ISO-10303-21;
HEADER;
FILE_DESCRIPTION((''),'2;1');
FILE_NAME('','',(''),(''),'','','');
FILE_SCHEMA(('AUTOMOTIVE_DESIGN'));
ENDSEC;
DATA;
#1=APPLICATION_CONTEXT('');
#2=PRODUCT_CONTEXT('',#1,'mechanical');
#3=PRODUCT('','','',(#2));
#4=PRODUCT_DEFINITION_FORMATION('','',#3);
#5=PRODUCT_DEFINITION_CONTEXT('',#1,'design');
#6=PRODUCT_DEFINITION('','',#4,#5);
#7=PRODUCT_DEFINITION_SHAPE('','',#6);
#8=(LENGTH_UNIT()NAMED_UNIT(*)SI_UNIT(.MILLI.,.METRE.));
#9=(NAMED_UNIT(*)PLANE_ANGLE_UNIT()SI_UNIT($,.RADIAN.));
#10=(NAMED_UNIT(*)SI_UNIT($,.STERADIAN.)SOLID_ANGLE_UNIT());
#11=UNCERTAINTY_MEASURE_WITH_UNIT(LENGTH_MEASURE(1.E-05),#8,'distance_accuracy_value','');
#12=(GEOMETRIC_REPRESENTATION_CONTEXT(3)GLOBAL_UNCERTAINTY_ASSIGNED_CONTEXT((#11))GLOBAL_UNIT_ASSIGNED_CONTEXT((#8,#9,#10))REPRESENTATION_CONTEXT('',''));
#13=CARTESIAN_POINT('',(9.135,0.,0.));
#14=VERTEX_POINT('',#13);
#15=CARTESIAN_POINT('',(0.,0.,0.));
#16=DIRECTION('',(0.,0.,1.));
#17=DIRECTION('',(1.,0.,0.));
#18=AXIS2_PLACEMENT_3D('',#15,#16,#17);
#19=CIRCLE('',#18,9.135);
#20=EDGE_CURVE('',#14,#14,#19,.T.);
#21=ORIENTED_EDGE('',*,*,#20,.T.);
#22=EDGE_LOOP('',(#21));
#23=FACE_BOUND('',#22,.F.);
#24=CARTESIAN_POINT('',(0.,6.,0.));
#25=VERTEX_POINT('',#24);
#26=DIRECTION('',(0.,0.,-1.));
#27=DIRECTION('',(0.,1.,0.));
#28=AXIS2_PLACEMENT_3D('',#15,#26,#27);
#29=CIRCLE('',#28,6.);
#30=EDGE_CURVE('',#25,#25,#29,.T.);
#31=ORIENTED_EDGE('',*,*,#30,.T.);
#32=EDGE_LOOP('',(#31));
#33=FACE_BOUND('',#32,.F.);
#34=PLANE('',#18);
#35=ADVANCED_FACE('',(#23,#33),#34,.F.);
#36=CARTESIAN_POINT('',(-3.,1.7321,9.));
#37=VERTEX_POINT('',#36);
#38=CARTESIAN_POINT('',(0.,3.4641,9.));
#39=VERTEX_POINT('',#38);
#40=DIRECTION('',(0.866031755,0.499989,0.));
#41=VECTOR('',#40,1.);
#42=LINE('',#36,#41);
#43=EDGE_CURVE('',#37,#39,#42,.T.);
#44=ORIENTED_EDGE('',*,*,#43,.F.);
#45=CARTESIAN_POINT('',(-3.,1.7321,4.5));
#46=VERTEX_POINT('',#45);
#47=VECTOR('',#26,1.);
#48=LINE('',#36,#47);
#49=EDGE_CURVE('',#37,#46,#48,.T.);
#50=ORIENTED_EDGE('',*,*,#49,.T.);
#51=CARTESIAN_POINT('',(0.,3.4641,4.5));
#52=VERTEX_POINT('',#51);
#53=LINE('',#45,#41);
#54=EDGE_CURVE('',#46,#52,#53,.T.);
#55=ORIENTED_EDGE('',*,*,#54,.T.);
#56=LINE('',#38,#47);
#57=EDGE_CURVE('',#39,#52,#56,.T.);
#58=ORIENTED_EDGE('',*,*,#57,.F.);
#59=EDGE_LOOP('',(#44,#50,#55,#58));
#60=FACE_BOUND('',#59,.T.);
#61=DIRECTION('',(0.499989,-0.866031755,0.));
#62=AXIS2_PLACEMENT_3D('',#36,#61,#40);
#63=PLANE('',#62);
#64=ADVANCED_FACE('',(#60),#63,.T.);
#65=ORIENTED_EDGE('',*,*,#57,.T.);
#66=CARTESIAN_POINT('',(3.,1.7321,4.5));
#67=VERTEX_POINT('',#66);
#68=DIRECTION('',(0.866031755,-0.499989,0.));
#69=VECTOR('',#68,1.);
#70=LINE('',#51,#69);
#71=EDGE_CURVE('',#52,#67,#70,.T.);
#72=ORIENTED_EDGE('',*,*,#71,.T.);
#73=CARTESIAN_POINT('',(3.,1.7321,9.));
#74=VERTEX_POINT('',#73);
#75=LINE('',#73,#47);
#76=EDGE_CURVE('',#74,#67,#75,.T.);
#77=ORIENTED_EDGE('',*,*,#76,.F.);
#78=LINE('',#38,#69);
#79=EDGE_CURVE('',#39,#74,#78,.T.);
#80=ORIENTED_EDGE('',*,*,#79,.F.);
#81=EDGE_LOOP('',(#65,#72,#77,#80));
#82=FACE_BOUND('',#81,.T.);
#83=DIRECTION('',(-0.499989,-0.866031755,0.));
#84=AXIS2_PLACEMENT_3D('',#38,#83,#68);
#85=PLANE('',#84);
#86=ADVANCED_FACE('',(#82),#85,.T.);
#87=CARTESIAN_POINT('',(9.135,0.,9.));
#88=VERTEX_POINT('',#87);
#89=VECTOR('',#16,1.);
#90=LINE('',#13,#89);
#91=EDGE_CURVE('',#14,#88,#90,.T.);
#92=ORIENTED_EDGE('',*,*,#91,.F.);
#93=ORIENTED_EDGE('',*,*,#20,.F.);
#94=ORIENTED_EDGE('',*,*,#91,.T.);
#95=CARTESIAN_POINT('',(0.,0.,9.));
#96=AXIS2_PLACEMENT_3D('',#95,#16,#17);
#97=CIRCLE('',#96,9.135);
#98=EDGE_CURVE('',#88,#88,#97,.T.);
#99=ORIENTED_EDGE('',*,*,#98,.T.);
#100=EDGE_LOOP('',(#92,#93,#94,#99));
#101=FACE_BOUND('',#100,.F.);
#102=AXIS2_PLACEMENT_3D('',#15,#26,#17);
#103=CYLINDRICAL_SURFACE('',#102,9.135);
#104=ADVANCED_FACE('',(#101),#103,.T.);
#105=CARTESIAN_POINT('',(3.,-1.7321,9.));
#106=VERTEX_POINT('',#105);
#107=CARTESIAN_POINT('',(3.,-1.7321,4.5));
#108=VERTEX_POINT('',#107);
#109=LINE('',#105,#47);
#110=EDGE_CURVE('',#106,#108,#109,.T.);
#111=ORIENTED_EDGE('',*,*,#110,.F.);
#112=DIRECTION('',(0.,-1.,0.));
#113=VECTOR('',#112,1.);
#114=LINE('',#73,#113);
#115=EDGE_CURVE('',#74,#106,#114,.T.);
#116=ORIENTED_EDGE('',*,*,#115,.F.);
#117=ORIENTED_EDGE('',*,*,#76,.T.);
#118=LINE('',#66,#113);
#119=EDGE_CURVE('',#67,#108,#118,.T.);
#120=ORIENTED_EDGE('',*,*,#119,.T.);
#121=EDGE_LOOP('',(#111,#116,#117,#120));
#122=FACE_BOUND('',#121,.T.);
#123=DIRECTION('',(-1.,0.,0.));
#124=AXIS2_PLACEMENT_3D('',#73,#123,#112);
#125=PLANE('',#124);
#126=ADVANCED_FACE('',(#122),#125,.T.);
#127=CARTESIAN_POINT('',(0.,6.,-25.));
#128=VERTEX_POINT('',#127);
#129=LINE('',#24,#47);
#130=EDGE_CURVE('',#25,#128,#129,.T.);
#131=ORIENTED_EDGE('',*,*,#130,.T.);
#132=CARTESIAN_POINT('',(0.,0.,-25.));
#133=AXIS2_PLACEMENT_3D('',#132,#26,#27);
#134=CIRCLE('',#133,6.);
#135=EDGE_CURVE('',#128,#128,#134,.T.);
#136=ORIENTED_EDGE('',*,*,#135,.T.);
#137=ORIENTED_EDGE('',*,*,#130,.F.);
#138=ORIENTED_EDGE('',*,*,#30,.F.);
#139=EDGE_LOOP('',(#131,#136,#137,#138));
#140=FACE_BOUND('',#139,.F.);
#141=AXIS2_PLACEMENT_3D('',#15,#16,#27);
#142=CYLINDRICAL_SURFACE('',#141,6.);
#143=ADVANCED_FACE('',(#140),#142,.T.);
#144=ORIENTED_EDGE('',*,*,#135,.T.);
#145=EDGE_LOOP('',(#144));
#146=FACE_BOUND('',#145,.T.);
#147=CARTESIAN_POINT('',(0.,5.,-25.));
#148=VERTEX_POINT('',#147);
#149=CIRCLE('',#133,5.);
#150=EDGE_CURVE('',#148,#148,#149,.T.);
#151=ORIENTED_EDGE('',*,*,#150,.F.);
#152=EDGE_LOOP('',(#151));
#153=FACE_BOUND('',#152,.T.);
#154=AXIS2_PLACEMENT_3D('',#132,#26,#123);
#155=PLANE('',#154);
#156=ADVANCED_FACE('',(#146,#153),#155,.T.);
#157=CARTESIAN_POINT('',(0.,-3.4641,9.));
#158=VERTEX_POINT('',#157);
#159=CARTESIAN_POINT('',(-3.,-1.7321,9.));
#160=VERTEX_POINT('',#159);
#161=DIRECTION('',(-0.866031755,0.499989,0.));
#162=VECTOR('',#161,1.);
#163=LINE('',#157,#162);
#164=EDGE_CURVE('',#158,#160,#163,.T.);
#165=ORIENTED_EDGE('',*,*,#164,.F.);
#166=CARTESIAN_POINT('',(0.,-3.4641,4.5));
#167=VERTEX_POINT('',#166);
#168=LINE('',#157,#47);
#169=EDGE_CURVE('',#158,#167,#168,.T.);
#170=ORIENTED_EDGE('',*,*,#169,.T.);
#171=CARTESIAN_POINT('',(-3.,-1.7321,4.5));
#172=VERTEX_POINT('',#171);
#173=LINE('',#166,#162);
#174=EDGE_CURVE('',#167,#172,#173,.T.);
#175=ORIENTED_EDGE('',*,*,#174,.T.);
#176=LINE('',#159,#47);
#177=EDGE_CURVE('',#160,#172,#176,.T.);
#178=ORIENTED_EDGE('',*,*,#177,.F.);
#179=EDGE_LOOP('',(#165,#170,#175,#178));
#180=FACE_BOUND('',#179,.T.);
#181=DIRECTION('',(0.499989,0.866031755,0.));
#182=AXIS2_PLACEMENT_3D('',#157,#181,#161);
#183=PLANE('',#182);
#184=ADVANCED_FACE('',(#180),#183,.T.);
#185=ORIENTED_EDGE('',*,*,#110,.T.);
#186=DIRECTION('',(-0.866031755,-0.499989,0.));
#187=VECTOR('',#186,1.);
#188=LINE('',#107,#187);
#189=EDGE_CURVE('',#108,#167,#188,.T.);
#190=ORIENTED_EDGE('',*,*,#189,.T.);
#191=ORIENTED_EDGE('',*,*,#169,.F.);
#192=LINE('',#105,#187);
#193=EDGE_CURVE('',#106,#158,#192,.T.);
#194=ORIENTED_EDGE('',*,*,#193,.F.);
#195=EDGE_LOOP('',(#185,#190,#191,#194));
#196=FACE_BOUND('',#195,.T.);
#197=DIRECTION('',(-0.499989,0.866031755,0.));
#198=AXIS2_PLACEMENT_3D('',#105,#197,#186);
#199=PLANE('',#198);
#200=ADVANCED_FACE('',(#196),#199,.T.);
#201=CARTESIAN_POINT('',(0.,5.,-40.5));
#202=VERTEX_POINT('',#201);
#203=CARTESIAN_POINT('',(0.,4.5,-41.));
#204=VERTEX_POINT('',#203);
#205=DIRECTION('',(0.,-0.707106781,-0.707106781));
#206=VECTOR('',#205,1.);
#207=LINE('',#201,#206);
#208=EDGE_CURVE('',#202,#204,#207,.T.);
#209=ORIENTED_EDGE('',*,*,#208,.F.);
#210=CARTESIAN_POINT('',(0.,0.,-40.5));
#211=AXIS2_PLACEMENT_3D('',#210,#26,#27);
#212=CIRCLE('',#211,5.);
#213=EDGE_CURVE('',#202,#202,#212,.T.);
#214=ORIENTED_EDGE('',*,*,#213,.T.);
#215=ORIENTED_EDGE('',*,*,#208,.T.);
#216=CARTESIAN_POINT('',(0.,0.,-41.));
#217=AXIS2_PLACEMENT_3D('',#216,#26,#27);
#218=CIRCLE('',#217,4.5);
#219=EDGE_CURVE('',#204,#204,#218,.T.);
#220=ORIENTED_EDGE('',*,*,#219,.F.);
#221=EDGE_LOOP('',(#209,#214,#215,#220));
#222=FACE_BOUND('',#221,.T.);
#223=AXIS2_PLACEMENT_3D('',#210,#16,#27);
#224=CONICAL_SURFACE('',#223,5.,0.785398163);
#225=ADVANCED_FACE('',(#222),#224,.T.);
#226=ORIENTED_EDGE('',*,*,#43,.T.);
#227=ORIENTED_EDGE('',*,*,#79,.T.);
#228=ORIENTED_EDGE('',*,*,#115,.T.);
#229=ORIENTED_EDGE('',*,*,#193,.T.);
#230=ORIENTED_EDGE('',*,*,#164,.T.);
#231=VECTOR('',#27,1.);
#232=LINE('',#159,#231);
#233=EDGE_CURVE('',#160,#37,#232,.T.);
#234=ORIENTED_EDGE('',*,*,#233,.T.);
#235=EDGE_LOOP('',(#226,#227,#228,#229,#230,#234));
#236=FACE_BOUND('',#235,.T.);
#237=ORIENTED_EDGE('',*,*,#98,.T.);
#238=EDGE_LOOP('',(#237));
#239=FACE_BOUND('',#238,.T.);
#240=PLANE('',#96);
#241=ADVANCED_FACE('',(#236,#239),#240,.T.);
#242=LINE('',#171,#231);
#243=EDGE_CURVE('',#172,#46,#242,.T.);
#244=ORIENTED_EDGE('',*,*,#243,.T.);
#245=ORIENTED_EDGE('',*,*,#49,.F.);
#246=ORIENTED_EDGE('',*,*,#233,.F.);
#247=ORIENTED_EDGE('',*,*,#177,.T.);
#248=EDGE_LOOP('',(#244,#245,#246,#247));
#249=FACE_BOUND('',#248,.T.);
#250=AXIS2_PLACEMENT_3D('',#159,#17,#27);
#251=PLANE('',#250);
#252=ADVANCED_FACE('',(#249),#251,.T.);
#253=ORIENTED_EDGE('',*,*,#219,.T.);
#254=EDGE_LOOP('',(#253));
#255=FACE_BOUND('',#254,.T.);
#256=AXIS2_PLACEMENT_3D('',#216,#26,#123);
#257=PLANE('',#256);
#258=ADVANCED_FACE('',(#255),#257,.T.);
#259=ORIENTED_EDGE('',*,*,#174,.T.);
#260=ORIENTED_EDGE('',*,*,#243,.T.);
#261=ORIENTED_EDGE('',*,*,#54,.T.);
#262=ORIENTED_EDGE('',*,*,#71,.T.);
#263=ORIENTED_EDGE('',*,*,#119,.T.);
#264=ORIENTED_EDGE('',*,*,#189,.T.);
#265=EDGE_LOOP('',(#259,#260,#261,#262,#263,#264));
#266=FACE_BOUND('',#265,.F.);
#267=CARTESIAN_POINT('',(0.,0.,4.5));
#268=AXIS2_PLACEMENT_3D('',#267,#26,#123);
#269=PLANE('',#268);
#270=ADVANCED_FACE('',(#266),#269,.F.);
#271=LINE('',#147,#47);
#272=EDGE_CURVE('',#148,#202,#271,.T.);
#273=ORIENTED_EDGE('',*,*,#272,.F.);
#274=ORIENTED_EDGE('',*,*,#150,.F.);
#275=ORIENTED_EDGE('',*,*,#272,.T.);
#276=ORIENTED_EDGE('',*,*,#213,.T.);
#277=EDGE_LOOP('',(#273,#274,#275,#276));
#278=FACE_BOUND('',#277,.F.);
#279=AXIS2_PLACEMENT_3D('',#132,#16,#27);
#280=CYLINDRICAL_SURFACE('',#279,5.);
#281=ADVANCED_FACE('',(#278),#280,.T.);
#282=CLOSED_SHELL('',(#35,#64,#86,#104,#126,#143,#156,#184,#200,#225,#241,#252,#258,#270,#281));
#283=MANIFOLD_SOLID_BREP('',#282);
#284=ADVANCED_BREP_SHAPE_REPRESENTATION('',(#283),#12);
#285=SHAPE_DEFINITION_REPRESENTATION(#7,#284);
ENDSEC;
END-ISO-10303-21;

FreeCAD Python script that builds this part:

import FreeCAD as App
import Part
import Sketcher

V = App.Vector
Q = App.Units.Quantity


def edges_at(feature, points):
    """Names of the edges that pass closest to the given points."""
    edges = feature.Shape.Edges
    near = lambda p: min(range(len(edges)), key=lambda i: edges[i].distToShape(Part.Vertex(*p))[0])
    return sorted({f"Edge{near(p) + 1}" for p in points})

doc = App.newDocument("Part")
body = doc.addObject("PartDesign::Body", "Body")

sketch1 = doc.addObject("Sketcher::SketchObject", "Sketch")
body.addObject(sketch1)
sketch1.AttachmentSupport = (doc.XY_Plane, [""])
sketch1.MapMode = "FlatFace"
sketch1.addGeometry(Part.Circle(V(0, 0, 0), V(0, 0, 1), 9), False)
sketch1.addConstraint(Sketcher.Constraint("Coincident", 0, 3, -1, 1))
sketch1.addConstraint(Sketcher.Constraint("Diameter", 0, 18.27))
pad1 = doc.addObject("PartDesign::Pad", "Pad")
body.addObject(pad1)
pad1.Profile = sketch1
pad1.Length = 9

sketch2 = doc.addObject("Sketcher::SketchObject", "Sketch001")
body.addObject(sketch2)
sketch2.AttachmentSupport = (doc.XY_Plane, [""])
sketch2.MapMode = "FlatFace"
sketch2.AttachmentOffset = App.Placement(V(0, 0, 9), App.Rotation())
sketch2.addGeometry(Part.LineSegment(V(-3, -1.7, 0), V(0, -3.5, 0)), False)
sketch2.addGeometry(Part.LineSegment(V(0, -3.5, 0), V(3, -1.7, 0)), False)
sketch2.addGeometry(Part.LineSegment(V(3, -1.7, 0), V(3, 1.7, 0)), False)
sketch2.addGeometry(Part.LineSegment(V(3, 1.7, 0), V(0, 3.5, 0)), False)
sketch2.addGeometry(Part.LineSegment(V(0, 3.5, 0), V(-3, 1.7, 0)), False)
sketch2.addGeometry(Part.LineSegment(V(-3, 1.7, 0), V(-3, -1.7, 0)), False)
sketch2.addConstraint(Sketcher.Constraint("Coincident", 0, 2, 1, 1))
sketch2.addConstraint(Sketcher.Constraint("Coincident", 1, 2, 2, 1))
sketch2.addConstraint(Sketcher.Constraint("Coincident", 2, 2, 3, 1))
sketch2.addConstraint(Sketcher.Constraint("Coincident", 3, 2, 4, 1))
sketch2.addConstraint(Sketcher.Constraint("Coincident", 4, 2, 5, 1))
sketch2.addConstraint(Sketcher.Constraint("Coincident", 5, 2, 0, 1))
sketch2.addConstraint(Sketcher.Constraint("Vertical", 2))
sketch2.addConstraint(Sketcher.Constraint("Vertical", 5))
sketch2.addConstraint(Sketcher.Constraint("Symmetric", 0, 2, 3, 2, -1, 1))
sketch2.addConstraint(Sketcher.Constraint("Symmetric", 1, 2, 4, 2, -1, 1))
sketch2.addConstraint(Sketcher.Constraint("PointOnObject", 0, 2, -2))
sketch2.addConstraint(Sketcher.Constraint("Parallel", 0, 3))
sketch2.addConstraint(Sketcher.Constraint("Horizontal", 2, 2, 4, 2))
sketch2.addConstraint(Sketcher.Constraint("Angle", 0, Q("-29.9993 deg")))
sketch2.addConstraint(Sketcher.Constraint("DistanceX", -1, 1, 1, 2, 3.0))
sketch2.addConstraint(Sketcher.Constraint("DistanceY", 2, 1, 2, 2, 3.4642))
pocket1 = doc.addObject("PartDesign::Pocket", "Pocket")
body.addObject(pocket1)
pocket1.Profile = sketch2
pocket1.Length = 4.5

sketch3 = doc.addObject("Sketcher::SketchObject", "Sketch002")
body.addObject(sketch3)
sketch3.AttachmentSupport = (doc.XY_Plane, [""])
sketch3.MapMode = "FlatFace"
sketch3.addGeometry(Part.Circle(V(0, 0, 0), V(0, 0, 1), 6), False)
sketch3.addConstraint(Sketcher.Constraint("Coincident", 0, 3, -1, 1))
sketch3.addConstraint(Sketcher.Constraint("Diameter", 0, 12.0))
pad2 = doc.addObject("PartDesign::Pad", "Pad001")
body.addObject(pad2)
pad2.Profile = sketch3
pad2.Length = 25
pad2.Reversed = True

sketch4 = doc.addObject("Sketcher::SketchObject", "Sketch003")
body.addObject(sketch4)
sketch4.AttachmentSupport = (doc.XY_Plane, [""])
sketch4.MapMode = "FlatFace"
sketch4.AttachmentOffset = App.Placement(V(0, 0, -25), App.Rotation())
sketch4.addGeometry(Part.Circle(V(0, 0, 0), V(0, 0, 1), 5), False)
sketch4.addConstraint(Sketcher.Constraint("Coincident", 0, 3, -1, 1))
sketch4.addConstraint(Sketcher.Constraint("Diameter", 0, 10.0))
pad3 = doc.addObject("PartDesign::Pad", "Pad002")
body.addObject(pad3)
pad3.Profile = sketch4
pad3.Length = 16
pad3.Reversed = True
doc.recompute()

chamfer = doc.addObject("PartDesign::Chamfer", "Chamfer")
body.addObject(chamfer)
chamfer.Base = (pad3, edges_at(pad3, [(0, -5, -41)]))
chamfer.Size = 0.5

doc.recompute()
